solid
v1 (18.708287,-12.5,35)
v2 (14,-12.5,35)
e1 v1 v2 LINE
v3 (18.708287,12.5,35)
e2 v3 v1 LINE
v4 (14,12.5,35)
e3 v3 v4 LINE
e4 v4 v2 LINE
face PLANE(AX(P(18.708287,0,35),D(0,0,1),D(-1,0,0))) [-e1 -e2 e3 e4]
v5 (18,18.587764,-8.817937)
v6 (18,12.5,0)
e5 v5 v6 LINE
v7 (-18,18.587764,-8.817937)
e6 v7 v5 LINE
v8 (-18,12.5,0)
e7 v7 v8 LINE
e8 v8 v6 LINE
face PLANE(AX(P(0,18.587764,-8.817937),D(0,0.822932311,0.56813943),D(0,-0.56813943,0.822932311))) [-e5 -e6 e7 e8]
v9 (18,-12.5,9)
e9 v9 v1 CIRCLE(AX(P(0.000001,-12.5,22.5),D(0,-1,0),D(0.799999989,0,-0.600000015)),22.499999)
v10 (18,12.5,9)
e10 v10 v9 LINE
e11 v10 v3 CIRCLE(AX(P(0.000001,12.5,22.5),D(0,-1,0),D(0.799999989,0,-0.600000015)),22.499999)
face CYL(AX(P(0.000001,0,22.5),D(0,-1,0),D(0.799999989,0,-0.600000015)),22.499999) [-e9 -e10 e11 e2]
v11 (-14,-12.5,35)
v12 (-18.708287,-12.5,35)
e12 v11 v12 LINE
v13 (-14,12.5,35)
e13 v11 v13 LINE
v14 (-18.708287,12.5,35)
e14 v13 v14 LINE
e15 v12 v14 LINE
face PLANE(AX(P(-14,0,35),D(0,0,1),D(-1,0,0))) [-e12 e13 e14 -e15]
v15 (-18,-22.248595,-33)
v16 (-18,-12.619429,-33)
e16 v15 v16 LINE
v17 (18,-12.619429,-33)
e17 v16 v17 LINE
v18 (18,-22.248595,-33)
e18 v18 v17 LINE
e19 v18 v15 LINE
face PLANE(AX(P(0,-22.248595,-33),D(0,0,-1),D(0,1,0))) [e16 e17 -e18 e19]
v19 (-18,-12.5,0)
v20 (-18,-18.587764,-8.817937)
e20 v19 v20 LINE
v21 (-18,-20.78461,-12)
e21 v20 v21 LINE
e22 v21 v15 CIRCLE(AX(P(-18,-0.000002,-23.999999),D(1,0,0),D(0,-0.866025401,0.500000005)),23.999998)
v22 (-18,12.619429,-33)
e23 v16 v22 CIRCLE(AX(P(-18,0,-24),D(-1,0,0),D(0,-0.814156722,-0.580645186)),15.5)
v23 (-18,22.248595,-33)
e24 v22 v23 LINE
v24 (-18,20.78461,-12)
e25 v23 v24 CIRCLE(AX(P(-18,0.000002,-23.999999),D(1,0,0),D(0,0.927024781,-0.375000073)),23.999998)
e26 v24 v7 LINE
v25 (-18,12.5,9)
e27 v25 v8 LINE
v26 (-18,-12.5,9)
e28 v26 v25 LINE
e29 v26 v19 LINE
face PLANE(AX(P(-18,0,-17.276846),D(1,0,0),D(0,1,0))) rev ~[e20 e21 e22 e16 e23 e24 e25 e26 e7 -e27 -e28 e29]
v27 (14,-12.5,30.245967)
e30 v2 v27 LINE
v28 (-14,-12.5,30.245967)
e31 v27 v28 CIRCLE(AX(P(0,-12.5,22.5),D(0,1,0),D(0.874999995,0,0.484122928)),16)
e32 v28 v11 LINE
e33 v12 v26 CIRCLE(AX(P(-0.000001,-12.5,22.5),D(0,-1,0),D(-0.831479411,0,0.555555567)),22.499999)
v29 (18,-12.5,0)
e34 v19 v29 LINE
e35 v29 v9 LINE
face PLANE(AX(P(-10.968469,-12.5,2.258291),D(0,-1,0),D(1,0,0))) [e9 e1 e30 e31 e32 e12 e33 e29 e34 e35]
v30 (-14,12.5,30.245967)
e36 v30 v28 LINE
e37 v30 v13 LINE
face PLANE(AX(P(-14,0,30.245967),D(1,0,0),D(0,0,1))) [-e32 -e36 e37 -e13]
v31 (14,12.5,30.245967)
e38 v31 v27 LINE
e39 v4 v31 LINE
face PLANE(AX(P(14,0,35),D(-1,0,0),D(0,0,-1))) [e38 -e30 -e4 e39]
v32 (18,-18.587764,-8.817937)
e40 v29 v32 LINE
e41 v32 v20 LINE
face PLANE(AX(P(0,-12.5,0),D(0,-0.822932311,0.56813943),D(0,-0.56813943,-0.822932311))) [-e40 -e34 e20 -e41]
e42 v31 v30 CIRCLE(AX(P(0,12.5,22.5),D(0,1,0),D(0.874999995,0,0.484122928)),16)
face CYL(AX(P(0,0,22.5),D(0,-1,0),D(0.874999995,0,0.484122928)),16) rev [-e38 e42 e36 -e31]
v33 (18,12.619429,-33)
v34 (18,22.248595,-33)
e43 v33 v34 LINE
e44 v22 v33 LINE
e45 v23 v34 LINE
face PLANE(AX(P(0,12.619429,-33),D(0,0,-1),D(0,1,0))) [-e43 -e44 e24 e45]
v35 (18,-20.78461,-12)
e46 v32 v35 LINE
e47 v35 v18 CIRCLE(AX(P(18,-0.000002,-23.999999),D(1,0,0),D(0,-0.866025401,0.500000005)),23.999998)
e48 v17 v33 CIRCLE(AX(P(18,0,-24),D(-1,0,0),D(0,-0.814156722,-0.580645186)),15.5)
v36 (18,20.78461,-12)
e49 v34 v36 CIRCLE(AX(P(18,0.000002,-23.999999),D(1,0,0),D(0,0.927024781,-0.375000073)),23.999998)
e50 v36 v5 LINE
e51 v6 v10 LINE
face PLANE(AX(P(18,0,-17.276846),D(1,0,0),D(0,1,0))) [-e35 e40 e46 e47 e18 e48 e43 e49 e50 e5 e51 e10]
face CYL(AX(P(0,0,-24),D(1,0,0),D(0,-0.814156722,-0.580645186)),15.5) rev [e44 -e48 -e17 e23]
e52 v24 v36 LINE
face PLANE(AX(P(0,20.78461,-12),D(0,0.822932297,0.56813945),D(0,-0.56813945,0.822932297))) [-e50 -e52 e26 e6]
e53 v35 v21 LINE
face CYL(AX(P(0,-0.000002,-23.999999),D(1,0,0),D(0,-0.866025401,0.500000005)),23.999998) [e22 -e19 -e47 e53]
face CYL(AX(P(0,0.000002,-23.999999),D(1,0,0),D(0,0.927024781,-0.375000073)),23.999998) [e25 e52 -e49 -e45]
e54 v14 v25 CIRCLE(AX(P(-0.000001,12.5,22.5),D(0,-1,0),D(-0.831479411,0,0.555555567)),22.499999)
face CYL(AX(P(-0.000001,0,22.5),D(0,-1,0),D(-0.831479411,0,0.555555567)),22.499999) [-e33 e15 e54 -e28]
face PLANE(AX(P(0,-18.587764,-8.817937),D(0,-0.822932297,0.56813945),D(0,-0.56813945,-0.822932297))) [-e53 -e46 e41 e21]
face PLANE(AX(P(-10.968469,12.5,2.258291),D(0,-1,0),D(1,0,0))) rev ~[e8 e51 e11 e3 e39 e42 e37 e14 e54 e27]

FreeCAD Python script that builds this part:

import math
import FreeCAD as App
import Part
import Sketcher
Q = App.Units.Quantity

doc = App.newDocument("Part")
body = doc.addObject("PartDesign::Body", "Body")

# Sketch on XZ plane
sketch1 = body.newObject("Sketcher::SketchObject", "Sketch")
sketch1.AttachmentSupport = (doc.getObject("XZ_Plane"), [""])
sketch1.MapMode = "FlatFace"
sketch1.addGeometry(Part.LineSegment(App.Vector(-18, 9, 0), App.Vector(-18, 0, 0)), False)
sketch1.addGeometry(Part.LineSegment(App.Vector(-18, 0, 0), App.Vector(18, 0, 0)), False)
sketch1.addGeometry(Part.LineSegment(App.Vector(18, 0, 0), App.Vector(18, 9, 0)), False)
sketch1.addGeometry(Part.ArcOfCircle(Part.Circle(App.Vector(0.000001, 22.5, 0), App.Vector(0, 0, 1), 22.499999), math.radians(-36.869899), math.radians(33.748989)), False)
sketch1.addGeometry(Part.LineSegment(App.Vector(18.708287, 35, 0), App.Vector(14, 35, 0)), False)
sketch1.addGeometry(Part.LineSegment(App.Vector(14, 35, 0), App.Vector(14, 30.245967, 0)), False)
sketch1.addGeometry(Part.ArcOfCircle(Part.Circle(App.Vector(0, 22.5, 0), App.Vector(0, 0, 1), 16), math.radians(151.044975), math.radians(388.955025)), False)
sketch1.addGeometry(Part.LineSegment(App.Vector(-14, 30.245967, 0), App.Vector(-14, 35, 0)), False)
sketch1.addGeometry(Part.LineSegment(App.Vector(-14, 35, 0), App.Vector(-18.708287, 35, 0)), False)
sketch1.addGeometry(Part.ArcOfCircle(Part.Circle(App.Vector(-0.000001, 22.5, 0), App.Vector(0, 0, 1), 22.499999), math.radians(146.251011), math.radians(216.869899)), False)
sketch1.addConstraint(Sketcher.Constraint("Coincident", 0, 2, 1, 1))
sketch1.addConstraint(Sketcher.Constraint("Coincident", 1, 2, 2, 1))
sketch1.addConstraint(Sketcher.Constraint("Coincident", 2, 2, 3, 1))
sketch1.addConstraint(Sketcher.Constraint("Coincident", 3, 2, 4, 1))
sketch1.addConstraint(Sketcher.Constraint("Coincident", 4, 2, 5, 1))
sketch1.addConstraint(Sketcher.Constraint("Coincident", 5, 2, 6, 2))
sketch1.addConstraint(Sketcher.Constraint("Coincident", 6, 1, 7, 1))
sketch1.addConstraint(Sketcher.Constraint("Coincident", 7, 2, 8, 1))
sketch1.addConstraint(Sketcher.Constraint("Coincident", 8, 2, 9, 1))
sketch1.addConstraint(Sketcher.Constraint("Coincident", 9, 2, 0, 1))
sketch1.addConstraint(Sketcher.Constraint("Vertical", 0))
sketch1.addConstraint(Sketcher.Constraint("Horizontal", 1))
sketch1.addConstraint(Sketcher.Constraint("Vertical", 2))
sketch1.addConstraint(Sketcher.Constraint("Horizontal", 4))
sketch1.addConstraint(Sketcher.Constraint("Vertical", 5))
sketch1.addConstraint(Sketcher.Constraint("Vertical", 7))
sketch1.addConstraint(Sketcher.Constraint("Horizontal", 8))
sketch1.addConstraint(Sketcher.Constraint("Coincident", 6, 3, 3, 3))
sketch1.addConstraint(Sketcher.Constraint("Coincident", 9, 3, 3, 3))
sketch1.addConstraint(Sketcher.Constraint("Equal", 3, 9))
sketch1.addConstraint(Sketcher.Constraint("Symmetric", 0, 2, 1, 2, -1, 1))
sketch1.addConstraint(Sketcher.Constraint("Symmetric", 5, 2, 6, 1, -2))
sketch1.addConstraint(Sketcher.Constraint("Horizontal", 4, 2, 7, 2))
sketch1.addConstraint(Sketcher.Constraint("Radius", 6, Q("16 mm")))
sketch1.addConstraint(Sketcher.Constraint("Radius", 3, Q("22.499999 mm")))
sketch1.addConstraint(Sketcher.Constraint("DistanceX", 1, 1, 1, 2, Q("36 mm")))
sketch1.addConstraint(Sketcher.Constraint("DistanceY", 0, 2, 0, 1, Q("9 mm")))
sketch1.addConstraint(Sketcher.Constraint("DistanceY", -1, 1, 3, 2, Q("35 mm")))
sketch1.addConstraint(Sketcher.Constraint("DistanceX", -1, 1, 4, 2, Q("14 mm")))
pad1 = body.newObject("PartDesign::Pad", "Pad")
pad1.Profile = sketch1
pad1.Length = 25
pad1.Midplane = True

# Sketch on YZ plane
sketch2 = body.newObject("Sketcher::SketchObject", "Sketch001")
sketch2.AttachmentSupport = (doc.getObject("YZ_Plane"), [""])
sketch2.MapMode = "FlatFace"
sketch2.addGeometry(Part.LineSegment(App.Vector(-22.248595, -33, 0), App.Vector(-12.619429, -33, 0)), False)
sketch2.addGeometry(Part.ArcOfCircle(Part.Circle(App.Vector(0, -24, 0), App.Vector(0, 0, 1), 15.5), math.radians(-35.495934), math.radians(215.495934)), False)
sketch2.addGeometry(Part.LineSegment(App.Vector(12.619429, -33, 0), App.Vector(22.248595, -33, 0)), False)
sketch2.addGeometry(Part.ArcOfCircle(Part.Circle(App.Vector(0.000002, -23.999999, 0), App.Vector(0, 0, 1), 23.999998), math.radians(-22.024317), math.radians(30)), False)
sketch2.addGeometry(Part.LineSegment(App.Vector(20.78461, -12, 0), App.Vector(18.587764, -8.817937, 0)), False)
sketch2.addGeometry(Part.LineSegment(App.Vector(18.587764, -8.817937, 0), App.Vector(12.5, 0, 0)), False)
sketch2.addGeometry(Part.LineSegment(App.Vector(12.5, 0, 0), App.Vector(-12.5, 0, 0)), False)
sketch2.addGeometry(Part.LineSegment(App.Vector(-12.5, 0, 0), App.Vector(-18.587764, -8.817937, 0)), False)
sketch2.addGeometry(Part.LineSegment(App.Vector(-18.587764, -8.817937, 0), App.Vector(-20.78461, -12, 0)), False)
sketch2.addGeometry(Part.ArcOfCircle(Part.Circle(App.Vector(-0.000002, -23.999999, 0), App.Vector(0, 0, 1), 23.999998), math.radians(150), math.radians(202.024317)), False)
sketch2.addConstraint(Sketcher.Constraint("Coincident", 0, 2, 1, 2))
sketch2.addConstraint(Sketcher.Constraint("Coincident", 1, 1, 2, 1))
sketch2.addConstraint(Sketcher.Constraint("Coincident", 2, 2, 3, 1))
sketch2.addConstraint(Sketcher.Constraint("Coincident", 3, 2, 4, 1))
sketch2.addConstraint(Sketcher.Constraint("Coincident", 4, 2, 5, 1))
sketch2.addConstraint(Sketcher.Constraint("Coincident", 5, 2, 6, 1))
sketch2.addConstraint(Sketcher.Constraint("Coincident", 6, 2, 7, 1))
sketch2.addConstraint(Sketcher.Constraint("Coincident", 7, 2, 8, 1))
sketch2.addConstraint(Sketcher.Constraint("Coincident", 8, 2, 9, 1))
sketch2.addConstraint(Sketcher.Constraint("Coincident", 9, 2, 0, 1))
sketch2.addConstraint(Sketcher.Constraint("Horizontal", 0))
sketch2.addConstraint(Sketcher.Constraint("Horizontal", 2))
sketch2.addConstraint(Sketcher.Constraint("Horizontal", 6))
sketch2.addConstraint(Sketcher.Constraint("Coincident", 3, 3, 1, 3))
sketch2.addConstraint(Sketcher.Constraint("Coincident", 9, 3, 1, 3))
sketch2.addConstraint(Sketcher.Constraint("Equal", 3, 9))
sketch2.addConstraint(Sketcher.Constraint("Symmetric", 5, 2, 6, 2, -1, 1))
sketch2.addConstraint(Sketcher.Constraint("Symmetric", 0, 2, 1, 1, -2))
sketch2.addConstraint(Sketcher.Constraint("Symmetric", 4, 2, 7, 2, -2))
sketch2.addConstraint(Sketcher.Constraint("Parallel", 4, 5))
sketch2.addConstraint(Sketcher.Constraint("Parallel", 7, 8))
sketch2.addConstraint(Sketcher.Constraint("Radius", 1, Q("15.5 mm")))
sketch2.addConstraint(Sketcher.Constraint("DistanceX", 6, 2, 6, 1, Q("25 mm")))
sketch2.addConstraint(Sketcher.Constraint("DistanceY", 1, 3, -1, 1, Q("24 mm")))
sketch2.addConstraint(Sketcher.Constraint("DistanceY", 0, 2, -1, 1, Q("33 mm")))
sketch2.addConstraint(Sketcher.Constraint("DistanceY", 3, 2, -1, 1, Q("12 mm")))
sketch2.addConstraint(Sketcher.Constraint("Radius", 3, Q("23.999998 mm")))
sketch2.addConstraint(Sketcher.Constraint("DistanceX", 3, 3, 4, 2, Q("18.587762 mm")))
pad2 = body.newObject("PartDesign::Pad", "Pad001")
pad2.Profile = sketch2
pad2.Length = 36
pad2.Midplane = True

doc.recompute()
